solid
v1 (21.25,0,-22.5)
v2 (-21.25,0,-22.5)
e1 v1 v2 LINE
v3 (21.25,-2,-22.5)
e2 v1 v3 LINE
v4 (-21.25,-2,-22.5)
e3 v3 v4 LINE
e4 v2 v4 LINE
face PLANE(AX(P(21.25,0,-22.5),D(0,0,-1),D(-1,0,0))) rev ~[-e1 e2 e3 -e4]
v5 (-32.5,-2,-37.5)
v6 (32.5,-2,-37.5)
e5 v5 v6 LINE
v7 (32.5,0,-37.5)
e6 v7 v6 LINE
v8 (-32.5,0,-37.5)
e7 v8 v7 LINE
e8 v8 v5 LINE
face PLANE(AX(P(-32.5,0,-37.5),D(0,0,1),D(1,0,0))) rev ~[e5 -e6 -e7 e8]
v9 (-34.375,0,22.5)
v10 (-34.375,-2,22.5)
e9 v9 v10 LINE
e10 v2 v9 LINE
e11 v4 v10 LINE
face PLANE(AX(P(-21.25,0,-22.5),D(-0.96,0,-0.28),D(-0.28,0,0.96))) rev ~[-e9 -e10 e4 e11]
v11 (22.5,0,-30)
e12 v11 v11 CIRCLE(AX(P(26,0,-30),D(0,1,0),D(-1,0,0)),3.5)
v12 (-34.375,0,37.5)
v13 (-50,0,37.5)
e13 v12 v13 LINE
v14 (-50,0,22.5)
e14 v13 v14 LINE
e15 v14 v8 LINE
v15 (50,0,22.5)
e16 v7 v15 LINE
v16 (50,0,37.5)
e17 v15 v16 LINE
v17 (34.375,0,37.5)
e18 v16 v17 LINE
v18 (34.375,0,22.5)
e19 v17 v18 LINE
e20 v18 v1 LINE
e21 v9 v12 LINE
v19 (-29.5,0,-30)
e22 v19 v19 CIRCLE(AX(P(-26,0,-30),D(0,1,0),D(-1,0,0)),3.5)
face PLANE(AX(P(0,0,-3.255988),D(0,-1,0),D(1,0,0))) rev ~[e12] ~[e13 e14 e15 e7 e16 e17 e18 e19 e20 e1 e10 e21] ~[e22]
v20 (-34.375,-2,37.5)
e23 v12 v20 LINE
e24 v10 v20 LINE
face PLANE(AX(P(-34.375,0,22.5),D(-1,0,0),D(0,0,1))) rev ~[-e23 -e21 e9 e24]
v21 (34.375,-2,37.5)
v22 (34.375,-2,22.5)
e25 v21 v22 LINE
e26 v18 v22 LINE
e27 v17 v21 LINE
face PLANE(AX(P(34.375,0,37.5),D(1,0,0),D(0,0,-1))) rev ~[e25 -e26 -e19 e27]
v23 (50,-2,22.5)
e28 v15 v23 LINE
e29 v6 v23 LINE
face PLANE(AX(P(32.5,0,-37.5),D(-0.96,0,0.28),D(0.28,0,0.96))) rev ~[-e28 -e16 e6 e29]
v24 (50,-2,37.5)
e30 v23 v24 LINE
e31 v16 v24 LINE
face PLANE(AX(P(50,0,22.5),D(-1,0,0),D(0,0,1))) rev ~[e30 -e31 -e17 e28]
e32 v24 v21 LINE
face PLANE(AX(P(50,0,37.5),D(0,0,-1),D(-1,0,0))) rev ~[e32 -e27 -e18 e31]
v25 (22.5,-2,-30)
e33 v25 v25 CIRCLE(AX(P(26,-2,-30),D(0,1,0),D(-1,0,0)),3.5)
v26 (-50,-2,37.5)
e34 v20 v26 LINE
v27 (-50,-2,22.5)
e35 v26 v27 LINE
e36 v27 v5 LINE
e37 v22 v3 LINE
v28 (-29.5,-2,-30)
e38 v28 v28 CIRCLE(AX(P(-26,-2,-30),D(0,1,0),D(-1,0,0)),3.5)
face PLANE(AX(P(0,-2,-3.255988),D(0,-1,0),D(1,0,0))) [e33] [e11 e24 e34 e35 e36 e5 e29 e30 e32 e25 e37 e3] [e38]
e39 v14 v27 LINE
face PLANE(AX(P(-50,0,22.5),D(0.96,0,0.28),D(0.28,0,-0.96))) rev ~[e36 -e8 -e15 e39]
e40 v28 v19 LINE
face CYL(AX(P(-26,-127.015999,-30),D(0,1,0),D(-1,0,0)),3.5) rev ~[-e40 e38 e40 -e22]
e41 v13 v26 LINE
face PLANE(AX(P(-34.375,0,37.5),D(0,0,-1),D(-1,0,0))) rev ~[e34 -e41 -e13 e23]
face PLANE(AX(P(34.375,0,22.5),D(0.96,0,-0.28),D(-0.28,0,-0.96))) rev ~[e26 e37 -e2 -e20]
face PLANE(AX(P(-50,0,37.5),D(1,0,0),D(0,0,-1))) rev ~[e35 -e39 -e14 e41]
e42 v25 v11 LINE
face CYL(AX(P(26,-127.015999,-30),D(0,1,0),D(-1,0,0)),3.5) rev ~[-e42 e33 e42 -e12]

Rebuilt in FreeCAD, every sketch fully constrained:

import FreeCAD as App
import Part
import Sketcher
from FreeCAD import Vector
Q = App.Units.Quantity

doc = App.newDocument("Part")
body = doc.addObject("PartDesign::Body", "Body")

# Sketch on XZ plane
sketch1 = body.newObject("Sketcher::SketchObject", "Sketch")
sketch1.AttachmentSupport = (doc.getObject("XZ_Plane"), [""])
sketch1.MapMode = "FlatFace"
sketch1.addGeometry([
    Part.LineSegment(Vector(-50, 22, 0), Vector(-32, -38, 0)),  # 0
    Part.LineSegment(Vector(-32, -38, 0), Vector(32, -38, 0)),  # 1
    Part.LineSegment(Vector(32, -38, 0), Vector(50, 22, 0)),  # 2
    Part.LineSegment(Vector(50, 22, 0), Vector(50, 38, 0)),  # 3
    Part.LineSegment(Vector(50, 38, 0), Vector(34, 38, 0)),  # 4
    Part.LineSegment(Vector(34, 38, 0), Vector(34, 22, 0)),  # 5
    Part.LineSegment(Vector(34, 22, 0), Vector(21, -22, 0)),  # 6
    Part.LineSegment(Vector(21, -22, 0), Vector(-21, -22, 0)),  # 7
    Part.LineSegment(Vector(-21, -22, 0), Vector(-34, 22, 0)),  # 8
    Part.LineSegment(Vector(-34, 22, 0), Vector(-34, 38, 0)),  # 9
    Part.LineSegment(Vector(-34, 38, 0), Vector(-50, 38, 0)),  # 10
    Part.LineSegment(Vector(-50, 38, 0), Vector(-50, 22, 0)),  # 11
], False)
sketch1.addConstraint([
    Sketcher.Constraint("Coincident", 0, 2, 1, 1),
    Sketcher.Constraint("Coincident", 1, 2, 2, 1),
    Sketcher.Constraint("Coincident", 2, 2, 3, 1),
    Sketcher.Constraint("Coincident", 3, 2, 4, 1),
    Sketcher.Constraint("Coincident", 4, 2, 5, 1),
    Sketcher.Constraint("Coincident", 5, 2, 6, 1),
    Sketcher.Constraint("Coincident", 6, 2, 7, 1),
    Sketcher.Constraint("Coincident", 7, 2, 8, 1),
    Sketcher.Constraint("Coincident", 8, 2, 9, 1),
    Sketcher.Constraint("Coincident", 9, 2, 10, 1),
    Sketcher.Constraint("Coincident", 10, 2, 11, 1),
    Sketcher.Constraint("Coincident", 11, 2, 0, 1),
    Sketcher.Constraint("Horizontal", 1),
    Sketcher.Constraint("Vertical", 3),
    Sketcher.Constraint("Horizontal", 4),
    Sketcher.Constraint("Vertical", 5),
    Sketcher.Constraint("Horizontal", 7),
    Sketcher.Constraint("Vertical", 9),
    Sketcher.Constraint("Horizontal", 10),
    Sketcher.Constraint("Vertical", 11),
    Sketcher.Constraint("Symmetric", 5, 2, 8, 2, -2),
    Sketcher.Constraint("Symmetric", 3, 2, 10, 2, -2),
    Sketcher.Constraint("Parallel", 2, 6),
    Sketcher.Constraint("Parallel", 0, 8),
    Sketcher.Constraint("Horizontal", 2, 2, 5, 2),
    Sketcher.Constraint("Horizontal", 8, 2, 11, 2),
    Sketcher.Constraint("Equal", 0, 2),
    Sketcher.Constraint("DistanceX", 1, 1, 1, 2, Q("65 mm")),
    Sketcher.Constraint("DistanceY", 3, 1, 3, 2, Q("15 mm")),
    Sketcher.Constraint("DistanceX", 7, 2, 7, 1, Q("42.5 mm")),
    Sketcher.Constraint("DistanceX", -1, 1, 2, 2, Q("50 mm")),
    Sketcher.Constraint("DistanceY", 1, 2, 2, 2, Q("60 mm")),
    Sketcher.Constraint("DistanceY", 1, 2, 6, 2, Q("15 mm")),
    Sketcher.Constraint("DistanceY", 0, 2, -1, 1, Q("37.5 mm")),
])
pad1 = body.newObject("PartDesign::Pad", "Pad")
pad1.Profile = sketch1
pad1.Length = 2

# Sketch on XZ plane
sketch2 = body.newObject("Sketcher::SketchObject", "Sketch001")
sketch2.AttachmentSupport = (doc.getObject("XZ_Plane"), [""])
sketch2.MapMode = "FlatFace"
sketch2.AttachmentOffset = App.Placement(Vector(0, 0, 2), App.Rotation())
sketch2.addGeometry([
    Part.Circle(Vector(-26, -30, 0), Vector(0, 0, 1), 3.5),
    Part.Circle(Vector(26, -30, 0), Vector(0, 0, 1), 3.5),
], False)
sketch2.addConstraint([
    Sketcher.Constraint("Equal", 0, 1),
    Sketcher.Constraint("Symmetric", 0, 3, 1, 3, -2),
    Sketcher.Constraint("Diameter", 0, Q("7 mm")),
    Sketcher.Constraint("DistanceX", 0, 3, -1, 1, Q("26 mm")),
    Sketcher.Constraint("DistanceY", 0, 3, -1, 1, Q("30 mm")),
])
doc.recompute()
hole = body.newObject("PartDesign::Hole", "Hole")
hole.Profile = sketch2
hole.ThreadType = "None"
hole.Diameter = 7
hole.DepthType = "ThroughAll"

doc.recompute()
